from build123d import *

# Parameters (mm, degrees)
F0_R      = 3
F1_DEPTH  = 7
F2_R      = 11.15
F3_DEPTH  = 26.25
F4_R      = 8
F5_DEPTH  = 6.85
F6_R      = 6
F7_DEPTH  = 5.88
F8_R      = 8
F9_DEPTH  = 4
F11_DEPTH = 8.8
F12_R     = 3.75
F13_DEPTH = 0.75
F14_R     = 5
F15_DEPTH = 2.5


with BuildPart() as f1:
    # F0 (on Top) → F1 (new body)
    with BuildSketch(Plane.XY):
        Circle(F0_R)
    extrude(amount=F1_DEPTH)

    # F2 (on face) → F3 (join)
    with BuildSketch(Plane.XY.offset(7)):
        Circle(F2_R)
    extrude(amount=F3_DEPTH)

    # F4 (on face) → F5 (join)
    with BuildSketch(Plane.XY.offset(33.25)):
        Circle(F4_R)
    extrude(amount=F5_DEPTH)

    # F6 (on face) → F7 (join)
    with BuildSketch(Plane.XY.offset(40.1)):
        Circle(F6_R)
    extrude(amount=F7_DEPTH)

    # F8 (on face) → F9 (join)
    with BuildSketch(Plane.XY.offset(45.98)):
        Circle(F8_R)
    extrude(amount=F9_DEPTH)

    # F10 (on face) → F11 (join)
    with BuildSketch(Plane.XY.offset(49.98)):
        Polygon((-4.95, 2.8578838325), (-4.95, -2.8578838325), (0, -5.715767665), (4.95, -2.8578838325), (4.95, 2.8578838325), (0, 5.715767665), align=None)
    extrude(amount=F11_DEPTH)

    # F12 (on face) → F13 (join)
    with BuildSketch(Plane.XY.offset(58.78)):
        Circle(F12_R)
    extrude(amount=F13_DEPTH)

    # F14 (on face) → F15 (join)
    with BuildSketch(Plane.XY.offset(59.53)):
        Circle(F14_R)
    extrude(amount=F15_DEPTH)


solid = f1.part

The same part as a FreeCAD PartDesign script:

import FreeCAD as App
import Part
import Sketcher

V = App.Vector
Q = App.Units.Quantity

doc = App.newDocument("Part")
body = doc.addObject("PartDesign::Body", "Body")

sketch1 = body.newObject("Sketcher::SketchObject", "Sketch")
sketch1.AttachmentSupport = (doc.getObject("XY_Plane"), [""])
sketch1.MapMode = "FlatFace"
sketch1.addGeometry(Part.Circle(V(0, 0, 0), V(0, 0, 1), 3), False)
sketch1.addConstraint(Sketcher.Constraint("Coincident", 0, 3, -1, 1))
sketch1.addConstraint(Sketcher.Constraint("Diameter", 0, Q("6 mm")))
pad1 = body.newObject("PartDesign::Pad", "Pad")
pad1.Profile = sketch1
pad1.Length = 7

sketch2 = body.newObject("Sketcher::SketchObject", "Sketch001")
sketch2.AttachmentSupport = (doc.getObject("XY_Plane"), [""])
sketch2.MapMode = "FlatFace"
sketch2.AttachmentOffset = App.Placement(V(0, 0, 7), App.Rotation())
sketch2.addGeometry(Part.Circle(V(0, 0, 0), V(0, 0, 1), 11.15), False)
sketch2.addConstraint(Sketcher.Constraint("Coincident", 0, 3, -1, 1))
sketch2.addConstraint(Sketcher.Constraint("Diameter", 0, Q("22.3 mm")))
pad2 = body.newObject("PartDesign::Pad", "Pad001")
pad2.Profile = sketch2
pad2.Length = 26.25

sketch3 = body.newObject("Sketcher::SketchObject", "Sketch002")
sketch3.AttachmentSupport = (doc.getObject("XY_Plane"), [""])
sketch3.MapMode = "FlatFace"
sketch3.AttachmentOffset = App.Placement(V(0, 0, 33.25), App.Rotation())
sketch3.addGeometry(Part.Circle(V(0, 0, 0), V(0, 0, 1), 8), False)
sketch3.addConstraint(Sketcher.Constraint("Coincident", 0, 3, -1, 1))
sketch3.addConstraint(Sketcher.Constraint("Diameter", 0, Q("16 mm")))
pad3 = body.newObject("PartDesign::Pad", "Pad002")
pad3.Profile = sketch3
pad3.Length = 6.85

sketch4 = body.newObject("Sketcher::SketchObject", "Sketch003")
sketch4.AttachmentSupport = (doc.getObject("XY_Plane"), [""])
sketch4.MapMode = "FlatFace"
sketch4.AttachmentOffset = App.Placement(V(0, 0, 40.1), App.Rotation())
sketch4.addGeometry(Part.Circle(V(0, 0, 0), V(0, 0, 1), 6), False)
sketch4.addConstraint(Sketcher.Constraint("Coincident", 0, 3, -1, 1))
sketch4.addConstraint(Sketcher.Constraint("Diameter", 0, Q("12 mm")))
pad4 = body.newObject("PartDesign::Pad", "Pad003")
pad4.Profile = sketch4
pad4.Length = 5.88

sketch5 = body.newObject("Sketcher::SketchObject", "Sketch004")
sketch5.AttachmentSupport = (doc.getObject("XY_Plane"), [""])
sketch5.MapMode = "FlatFace"
sketch5.AttachmentOffset = App.Placement(V(0, 0, 45.98), App.Rotation())
sketch5.addGeometry(Part.Circle(V(0, 0, 0), V(0, 0, 1), 8), False)
sketch5.addConstraint(Sketcher.Constraint("Coincident", 0, 3, -1, 1))
sketch5.addConstraint(Sketcher.Constraint("Diameter", 0, Q("16 mm")))
pad5 = body.newObject("PartDesign::Pad", "Pad004")
pad5.Profile = sketch5
pad5.Length = 4

sketch6 = body.newObject("Sketcher::SketchObject", "Sketch005")
sketch6.AttachmentSupport = (doc.getObject("XY_Plane"), [""])
sketch6.MapMode = "FlatFace"
sketch6.AttachmentOffset = App.Placement(V(0, 0, 49.98), App.Rotation())
sketch6.addGeometry(Part.LineSegment(V(-4.95, 2.857884, 0), V(-4.95, -2.857884, 0)), False)
sketch6.addGeometry(Part.LineSegment(V(-4.95, -2.857884, 0), V(0, -5.715768, 0)), False)
sketch6.addGeometry(Part.LineSegment(V(0, -5.715768, 0), V(4.95, -2.857884, 0)), False)
sketch6.addGeometry(Part.LineSegment(V(4.95, -2.857884, 0), V(4.95, 2.857884, 0)), False)
sketch6.addGeometry(Part.LineSegment(V(4.95, 2.857884, 0), V(0, 5.715768, 0)), False)
sketch6.addGeometry(Part.LineSegment(V(0, 5.715768, 0), V(-4.95, 2.857884, 0)), False)
sketch6.addConstraint(Sketcher.Constraint("Coincident", 0, 2, 1, 1))
sketch6.addConstraint(Sketcher.Constraint("Coincident", 1, 2, 2, 1))
sketch6.addConstraint(Sketcher.Constraint("Coincident", 2, 2, 3, 1))
sketch6.addConstraint(Sketcher.Constraint("Coincident", 3, 2, 4, 1))
sketch6.addConstraint(Sketcher.Constraint("Coincident", 4, 2, 5, 1))
sketch6.addConstraint(Sketcher.Constraint("Coincident", 5, 2, 0, 1))
sketch6.addConstraint(Sketcher.Constraint("Vertical", 0))
sketch6.addConstraint(Sketcher.Constraint("Vertical", 3))
sketch6.addConstraint(Sketcher.Constraint("Symmetric", 0, 2, 3, 2, -1, 1))
sketch6.addConstraint(Sketcher.Constraint("Symmetric", 1, 2, 4, 2, -1, 1))
sketch6.addConstraint(Sketcher.Constraint("PointOnObject", 1, 2, -2))
sketch6.addConstraint(Sketcher.Constraint("Parallel", 2, 5))
sketch6.addConstraint(Sketcher.Constraint("Horizontal", 0, 2, 2, 2))
sketch6.addConstraint(Sketcher.Constraint("Angle", 1, Q("-30 deg")))
sketch6.addConstraint(Sketcher.Constraint("DistanceX", 0, 2, 2, 2, Q("9.9 mm")))
sketch6.addConstraint(Sketcher.Constraint("DistanceY", 0, 2, 0, 1, Q("5.715768 mm")))
pad6 = body.newObject("PartDesign::Pad", "Pad005")
pad6.Profile = sketch6
pad6.Length = 8.8

sketch7 = body.newObject("Sketcher::SketchObject", "Sketch006")
sketch7.AttachmentSupport = (doc.getObject("XY_Plane"), [""])
sketch7.MapMode = "FlatFace"
sketch7.AttachmentOffset = App.Placement(V(0, 0, 58.78), App.Rotation())
sketch7.addGeometry(Part.Circle(V(0, 0, 0), V(0, 0, 1), 3.75), False)
sketch7.addConstraint(Sketcher.Constraint("Coincident", 0, 3, -1, 1))
sketch7.addConstraint(Sketcher.Constraint("Diameter", 0, Q("7.5 mm")))
pad7 = body.newObject("PartDesign::Pad", "Pad006")
pad7.Profile = sketch7
pad7.Length = 0.75

sketch8 = body.newObject("Sketcher::SketchObject", "Sketch007")
sketch8.AttachmentSupport = (doc.getObject("XY_Plane"), [""])
sketch8.MapMode = "FlatFace"
sketch8.AttachmentOffset = App.Placement(V(0, 0, 59.53), App.Rotation())
sketch8.addGeometry(Part.Circle(V(0, 0, 0), V(0, 0, 1), 5), False)
sketch8.addConstraint(Sketcher.Constraint("Coincident", 0, 3, -1, 1))
sketch8.addConstraint(Sketcher.Constraint("Diameter", 0, Q("10 mm")))
pad8 = body.newObject("PartDesign::Pad", "Pad007")
pad8.Profile = sketch8
pad8.Length = 2.5

doc.recompute()
